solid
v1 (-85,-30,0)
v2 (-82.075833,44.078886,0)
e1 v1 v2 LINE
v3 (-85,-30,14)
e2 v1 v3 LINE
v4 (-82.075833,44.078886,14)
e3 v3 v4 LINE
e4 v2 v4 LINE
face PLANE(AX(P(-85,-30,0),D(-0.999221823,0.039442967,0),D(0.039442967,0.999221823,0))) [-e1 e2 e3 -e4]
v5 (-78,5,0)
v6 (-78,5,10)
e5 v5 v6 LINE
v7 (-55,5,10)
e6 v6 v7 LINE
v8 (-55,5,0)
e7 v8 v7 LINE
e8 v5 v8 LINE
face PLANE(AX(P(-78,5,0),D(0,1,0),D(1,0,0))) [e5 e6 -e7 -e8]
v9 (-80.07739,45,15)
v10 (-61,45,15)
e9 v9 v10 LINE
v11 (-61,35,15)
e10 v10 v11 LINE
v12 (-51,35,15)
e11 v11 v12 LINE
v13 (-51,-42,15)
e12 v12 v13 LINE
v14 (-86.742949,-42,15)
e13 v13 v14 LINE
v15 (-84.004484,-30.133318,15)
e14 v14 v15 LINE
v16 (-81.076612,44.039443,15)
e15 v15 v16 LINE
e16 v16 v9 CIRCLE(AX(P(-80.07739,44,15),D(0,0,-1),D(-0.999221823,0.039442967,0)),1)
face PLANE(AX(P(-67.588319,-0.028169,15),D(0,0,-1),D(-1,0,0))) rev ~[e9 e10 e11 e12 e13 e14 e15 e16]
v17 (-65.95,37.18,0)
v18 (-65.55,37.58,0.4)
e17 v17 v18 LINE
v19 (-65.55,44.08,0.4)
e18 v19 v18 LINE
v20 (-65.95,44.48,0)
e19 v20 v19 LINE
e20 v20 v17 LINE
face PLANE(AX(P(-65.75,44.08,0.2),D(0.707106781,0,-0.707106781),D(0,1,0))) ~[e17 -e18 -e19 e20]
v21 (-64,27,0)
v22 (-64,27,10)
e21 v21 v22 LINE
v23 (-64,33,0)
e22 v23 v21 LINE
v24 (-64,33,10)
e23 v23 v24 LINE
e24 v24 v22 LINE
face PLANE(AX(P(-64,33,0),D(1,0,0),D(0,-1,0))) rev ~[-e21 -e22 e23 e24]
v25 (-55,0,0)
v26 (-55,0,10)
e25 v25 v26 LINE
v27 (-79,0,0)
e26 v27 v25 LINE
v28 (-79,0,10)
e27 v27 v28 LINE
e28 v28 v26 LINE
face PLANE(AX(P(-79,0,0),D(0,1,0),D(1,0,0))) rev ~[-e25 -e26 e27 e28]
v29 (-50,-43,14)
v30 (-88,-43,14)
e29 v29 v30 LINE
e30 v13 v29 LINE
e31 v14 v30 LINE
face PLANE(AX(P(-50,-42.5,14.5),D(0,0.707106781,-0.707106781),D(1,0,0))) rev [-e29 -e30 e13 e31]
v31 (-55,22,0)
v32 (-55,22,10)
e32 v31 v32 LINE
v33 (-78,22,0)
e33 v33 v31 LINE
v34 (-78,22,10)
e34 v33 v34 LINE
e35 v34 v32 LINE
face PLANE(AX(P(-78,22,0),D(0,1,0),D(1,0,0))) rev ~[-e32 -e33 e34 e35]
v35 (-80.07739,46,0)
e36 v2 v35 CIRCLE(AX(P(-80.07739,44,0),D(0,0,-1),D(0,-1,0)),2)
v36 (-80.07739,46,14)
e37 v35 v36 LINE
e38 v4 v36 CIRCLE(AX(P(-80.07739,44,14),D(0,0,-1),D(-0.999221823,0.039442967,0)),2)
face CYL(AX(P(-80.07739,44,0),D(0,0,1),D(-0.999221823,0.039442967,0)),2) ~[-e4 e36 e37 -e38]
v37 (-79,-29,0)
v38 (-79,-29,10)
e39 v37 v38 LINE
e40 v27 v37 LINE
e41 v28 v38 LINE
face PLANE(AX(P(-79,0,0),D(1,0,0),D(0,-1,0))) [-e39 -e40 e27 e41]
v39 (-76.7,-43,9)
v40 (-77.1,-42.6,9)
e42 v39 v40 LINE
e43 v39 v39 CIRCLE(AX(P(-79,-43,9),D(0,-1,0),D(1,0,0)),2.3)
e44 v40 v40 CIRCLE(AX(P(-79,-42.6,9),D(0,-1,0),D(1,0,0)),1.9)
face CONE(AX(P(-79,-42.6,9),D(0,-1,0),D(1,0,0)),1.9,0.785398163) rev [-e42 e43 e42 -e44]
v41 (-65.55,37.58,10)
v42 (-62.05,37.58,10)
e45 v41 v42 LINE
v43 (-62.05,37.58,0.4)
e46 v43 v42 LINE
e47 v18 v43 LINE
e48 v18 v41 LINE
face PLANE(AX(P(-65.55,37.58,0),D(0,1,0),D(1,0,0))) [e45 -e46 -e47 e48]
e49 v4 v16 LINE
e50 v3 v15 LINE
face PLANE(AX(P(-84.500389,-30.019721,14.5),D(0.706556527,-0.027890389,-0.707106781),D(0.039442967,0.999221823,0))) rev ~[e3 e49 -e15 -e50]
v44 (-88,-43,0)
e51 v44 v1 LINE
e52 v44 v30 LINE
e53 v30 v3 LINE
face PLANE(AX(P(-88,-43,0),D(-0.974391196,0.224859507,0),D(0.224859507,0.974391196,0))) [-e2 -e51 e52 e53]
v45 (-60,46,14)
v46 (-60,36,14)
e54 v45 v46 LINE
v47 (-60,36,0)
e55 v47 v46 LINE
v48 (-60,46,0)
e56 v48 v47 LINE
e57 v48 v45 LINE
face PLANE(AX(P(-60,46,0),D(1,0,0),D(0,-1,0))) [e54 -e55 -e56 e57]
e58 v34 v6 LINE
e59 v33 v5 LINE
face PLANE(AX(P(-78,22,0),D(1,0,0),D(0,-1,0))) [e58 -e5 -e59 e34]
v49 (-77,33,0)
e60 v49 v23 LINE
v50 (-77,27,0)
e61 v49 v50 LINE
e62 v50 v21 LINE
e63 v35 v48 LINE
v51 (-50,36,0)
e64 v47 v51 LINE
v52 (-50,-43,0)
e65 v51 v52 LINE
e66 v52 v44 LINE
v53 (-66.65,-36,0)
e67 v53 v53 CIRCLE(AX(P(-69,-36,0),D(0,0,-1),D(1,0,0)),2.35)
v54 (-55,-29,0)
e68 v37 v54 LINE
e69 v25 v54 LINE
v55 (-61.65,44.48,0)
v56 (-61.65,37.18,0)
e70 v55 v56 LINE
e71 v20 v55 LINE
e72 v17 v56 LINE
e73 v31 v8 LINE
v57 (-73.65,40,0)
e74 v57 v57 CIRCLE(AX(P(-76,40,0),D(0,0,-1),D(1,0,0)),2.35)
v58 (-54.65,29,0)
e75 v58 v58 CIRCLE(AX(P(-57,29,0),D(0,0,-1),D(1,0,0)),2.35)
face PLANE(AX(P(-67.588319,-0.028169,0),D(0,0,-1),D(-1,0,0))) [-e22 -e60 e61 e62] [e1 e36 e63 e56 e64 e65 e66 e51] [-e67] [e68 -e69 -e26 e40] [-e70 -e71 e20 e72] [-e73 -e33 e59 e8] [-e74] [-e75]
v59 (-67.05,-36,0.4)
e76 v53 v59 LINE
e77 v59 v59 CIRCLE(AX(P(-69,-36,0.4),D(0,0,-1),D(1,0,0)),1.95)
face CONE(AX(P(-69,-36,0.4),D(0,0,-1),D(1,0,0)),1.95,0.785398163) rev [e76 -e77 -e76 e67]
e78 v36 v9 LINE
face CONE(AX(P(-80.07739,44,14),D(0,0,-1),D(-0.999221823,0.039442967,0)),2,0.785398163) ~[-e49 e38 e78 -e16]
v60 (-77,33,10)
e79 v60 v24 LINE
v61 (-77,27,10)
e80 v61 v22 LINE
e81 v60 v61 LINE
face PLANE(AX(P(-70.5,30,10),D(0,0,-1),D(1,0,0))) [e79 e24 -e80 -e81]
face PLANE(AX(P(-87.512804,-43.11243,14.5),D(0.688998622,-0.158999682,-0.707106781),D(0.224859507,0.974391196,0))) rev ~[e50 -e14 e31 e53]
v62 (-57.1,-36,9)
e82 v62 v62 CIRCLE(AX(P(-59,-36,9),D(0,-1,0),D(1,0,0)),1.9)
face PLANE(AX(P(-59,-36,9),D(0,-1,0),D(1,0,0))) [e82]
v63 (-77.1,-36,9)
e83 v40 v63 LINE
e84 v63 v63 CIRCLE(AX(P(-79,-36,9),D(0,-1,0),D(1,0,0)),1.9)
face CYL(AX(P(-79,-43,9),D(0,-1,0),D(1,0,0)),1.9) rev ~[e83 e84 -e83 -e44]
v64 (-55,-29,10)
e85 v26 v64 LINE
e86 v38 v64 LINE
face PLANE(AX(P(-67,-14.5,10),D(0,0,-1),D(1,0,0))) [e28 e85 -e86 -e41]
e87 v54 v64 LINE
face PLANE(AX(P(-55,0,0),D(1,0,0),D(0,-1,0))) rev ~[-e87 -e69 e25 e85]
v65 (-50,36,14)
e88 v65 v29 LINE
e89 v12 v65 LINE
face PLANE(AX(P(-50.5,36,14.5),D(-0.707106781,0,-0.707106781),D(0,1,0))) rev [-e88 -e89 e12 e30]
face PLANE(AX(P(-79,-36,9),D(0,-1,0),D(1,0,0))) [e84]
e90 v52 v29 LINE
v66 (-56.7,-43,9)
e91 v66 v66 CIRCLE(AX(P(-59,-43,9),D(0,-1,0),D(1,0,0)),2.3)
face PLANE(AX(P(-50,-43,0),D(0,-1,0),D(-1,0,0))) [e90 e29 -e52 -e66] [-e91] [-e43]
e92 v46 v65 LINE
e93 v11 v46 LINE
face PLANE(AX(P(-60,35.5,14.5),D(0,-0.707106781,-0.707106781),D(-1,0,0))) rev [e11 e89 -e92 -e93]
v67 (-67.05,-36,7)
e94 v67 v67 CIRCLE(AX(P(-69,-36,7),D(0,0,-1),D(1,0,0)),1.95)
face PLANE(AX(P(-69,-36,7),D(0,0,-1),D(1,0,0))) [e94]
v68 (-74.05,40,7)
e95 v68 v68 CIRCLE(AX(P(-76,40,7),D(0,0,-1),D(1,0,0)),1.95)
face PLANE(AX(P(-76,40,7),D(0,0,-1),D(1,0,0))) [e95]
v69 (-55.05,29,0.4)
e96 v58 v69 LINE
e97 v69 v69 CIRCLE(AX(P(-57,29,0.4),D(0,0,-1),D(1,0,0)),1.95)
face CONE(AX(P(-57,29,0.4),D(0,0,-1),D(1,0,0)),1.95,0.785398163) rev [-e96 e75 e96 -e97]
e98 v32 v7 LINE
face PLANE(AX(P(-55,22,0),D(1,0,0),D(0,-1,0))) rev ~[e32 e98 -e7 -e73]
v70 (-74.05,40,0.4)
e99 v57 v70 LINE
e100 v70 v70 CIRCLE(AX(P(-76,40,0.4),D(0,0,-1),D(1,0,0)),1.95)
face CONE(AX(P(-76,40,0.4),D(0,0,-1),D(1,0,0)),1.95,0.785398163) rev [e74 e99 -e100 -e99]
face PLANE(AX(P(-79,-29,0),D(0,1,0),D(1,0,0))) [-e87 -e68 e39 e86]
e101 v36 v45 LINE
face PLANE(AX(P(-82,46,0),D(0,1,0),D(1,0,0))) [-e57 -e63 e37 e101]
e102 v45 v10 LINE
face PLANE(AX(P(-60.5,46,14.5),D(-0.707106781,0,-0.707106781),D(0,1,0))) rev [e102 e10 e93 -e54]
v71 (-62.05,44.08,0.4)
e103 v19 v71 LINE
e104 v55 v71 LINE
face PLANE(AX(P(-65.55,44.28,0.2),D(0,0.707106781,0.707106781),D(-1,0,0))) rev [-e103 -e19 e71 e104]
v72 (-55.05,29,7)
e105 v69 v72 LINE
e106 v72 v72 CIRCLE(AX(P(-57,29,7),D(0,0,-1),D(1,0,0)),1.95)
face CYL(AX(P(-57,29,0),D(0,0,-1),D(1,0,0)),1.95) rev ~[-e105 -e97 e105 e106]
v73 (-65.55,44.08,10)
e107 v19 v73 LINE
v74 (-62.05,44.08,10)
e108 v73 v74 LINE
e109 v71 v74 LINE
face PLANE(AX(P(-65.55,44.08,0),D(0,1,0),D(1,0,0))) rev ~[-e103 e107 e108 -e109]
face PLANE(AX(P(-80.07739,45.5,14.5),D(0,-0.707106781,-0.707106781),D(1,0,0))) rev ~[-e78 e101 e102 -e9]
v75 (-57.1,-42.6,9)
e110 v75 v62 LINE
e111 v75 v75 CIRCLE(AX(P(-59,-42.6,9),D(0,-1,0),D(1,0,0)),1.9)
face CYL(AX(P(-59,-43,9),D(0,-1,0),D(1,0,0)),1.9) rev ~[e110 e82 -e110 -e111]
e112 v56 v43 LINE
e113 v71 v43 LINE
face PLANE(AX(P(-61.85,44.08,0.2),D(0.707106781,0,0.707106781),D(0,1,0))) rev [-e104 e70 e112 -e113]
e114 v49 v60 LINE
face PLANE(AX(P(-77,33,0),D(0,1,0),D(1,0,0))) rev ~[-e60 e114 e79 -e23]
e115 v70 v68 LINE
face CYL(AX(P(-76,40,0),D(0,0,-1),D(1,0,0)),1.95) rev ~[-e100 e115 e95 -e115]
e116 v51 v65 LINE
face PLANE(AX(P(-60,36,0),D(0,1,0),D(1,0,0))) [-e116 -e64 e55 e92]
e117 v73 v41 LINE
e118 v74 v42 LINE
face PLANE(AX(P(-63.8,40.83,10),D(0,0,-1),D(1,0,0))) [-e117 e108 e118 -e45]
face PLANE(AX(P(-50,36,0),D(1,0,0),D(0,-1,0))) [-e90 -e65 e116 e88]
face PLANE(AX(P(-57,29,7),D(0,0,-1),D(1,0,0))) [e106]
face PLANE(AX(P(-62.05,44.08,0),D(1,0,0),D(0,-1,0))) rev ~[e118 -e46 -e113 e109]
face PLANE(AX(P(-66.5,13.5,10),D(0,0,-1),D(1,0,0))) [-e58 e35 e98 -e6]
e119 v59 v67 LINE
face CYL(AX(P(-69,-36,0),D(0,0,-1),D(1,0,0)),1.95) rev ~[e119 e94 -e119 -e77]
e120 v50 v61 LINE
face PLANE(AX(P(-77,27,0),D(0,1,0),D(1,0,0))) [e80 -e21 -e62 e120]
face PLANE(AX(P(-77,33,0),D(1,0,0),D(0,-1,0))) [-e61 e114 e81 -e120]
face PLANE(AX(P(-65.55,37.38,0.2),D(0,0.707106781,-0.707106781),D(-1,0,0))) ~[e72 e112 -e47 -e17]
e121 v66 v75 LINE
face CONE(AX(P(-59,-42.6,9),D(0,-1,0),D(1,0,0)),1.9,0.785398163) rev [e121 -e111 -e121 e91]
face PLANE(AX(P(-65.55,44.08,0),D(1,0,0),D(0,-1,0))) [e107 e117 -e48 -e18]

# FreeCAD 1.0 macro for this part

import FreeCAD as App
import Part
import Sketcher
Q = App.Units.Quantity


def edges_at(feature, points):
    """Names of the edges that pass closest to the given points."""
    edges = feature.Shape.Edges
    near = lambda p: min(range(len(edges)), key=lambda i: edges[i].distToShape(Part.Vertex(*p))[0])
    return sorted({f"Edge{near(p) + 1}" for p in points})


def add_polygon(sketch, points):
    """Adds a closed chain of lines whose ends are joined by coincident constraints."""
    first, n = sketch.GeometryCount, len(points)
    for a, b in zip(points, points[1:] + points[:1]):
        sketch.addGeometry(Part.LineSegment(App.Vector(*a, 0), App.Vector(*b, 0)), False)
    for i in range(n):
        sketch.addConstraint(Sketcher.Constraint("Coincident", first + i, 2, first + (i + 1) % n, 1))

doc = App.newDocument("Part")
body = doc.addObject("PartDesign::Body", "Body")

# Sketch on XY plane
sketch1 = doc.addObject("Sketcher::SketchObject", "Sketch")
body.addObject(sketch1)
sketch1.AttachmentSupport = (doc.XY_Plane, [""])
sketch1.MapMode = "FlatFace"
add_polygon(sketch1, [(0, -43), (0, 36), (-10, 36), (-10, 46), (-32, 46), (-35, -30), (-38, -43)])  # lines 0-6
sketch1.addConstraint([
    Sketcher.Constraint("Vertical", 0),
    Sketcher.Constraint("Horizontal", 1),
    Sketcher.Constraint("Vertical", 2),
    Sketcher.Constraint("Horizontal", 3),
    Sketcher.Constraint("Horizontal", 6),
    Sketcher.Constraint("PointOnObject", 0, 2, -2),
    Sketcher.Constraint("Equal", 1, 2),
    Sketcher.Constraint("DistanceX", 1, 2, 1, 1, Q("10 mm")),
    Sketcher.Constraint("DistanceX", 3, 2, 3, 1, Q("22 mm")),
    Sketcher.Constraint("DistanceX", 6, 1, 6, 2, Q("38 mm")),
    Sketcher.Constraint("DistanceY", 0, 1, 0, 2, Q("79 mm")),
    Sketcher.Constraint("DistanceY", -1, 1, 0, 2, Q("36 mm")),
    Sketcher.Constraint("DistanceX", 4, 2, -1, 1, Q("35 mm")),
    Sketcher.Constraint("DistanceY", 4, 2, -1, 1, Q("30 mm")),
])
pad1 = doc.addObject("PartDesign::Pad", "Pad")
body.addObject(pad1)
pad1.Profile = sketch1
pad1.Length = 15
doc.recompute()

fillet = doc.addObject("PartDesign::Fillet", "Fillet")
body.addObject(fillet)
fillet.Base = (pad1, edges_at(pad1, [(-32, 46, 7.5)]))
fillet.Radius = 2
doc.recompute()

chamfer = doc.addObject("PartDesign::Chamfer", "Chamfer")
body.addObject(chamfer)
chamfer.Base = (fillet, edges_at(fillet, [
    (-19, -43, 15),
    (-33.538, 7.039, 15),
    (-36.5, -36.5, 15),
    (0, -3.5, 15),
    (-5, 36, 15),
    (-10, 41, 15),
    (-20.039, 46, 15),
    (-31.463, 45.442, 15),
]))
chamfer.Size = 1

# Sketch on XZ plane
sketch2 = doc.addObject("Sketcher::SketchObject", "Sketch001")
body.addObject(sketch2)
sketch2.AttachmentSupport = (doc.XZ_Plane, [""])
sketch2.MapMode = "FlatFace"
sketch2.AttachmentOffset = App.Placement(App.Vector(0, 0, 43), App.Rotation())
sketch2.addGeometry([
    Part.Circle(App.Vector(-29, 9, 0), App.Vector(0, 0, 1), 1.9),
    Part.Circle(App.Vector(-9, 9, 0), App.Vector(0, 0, 1), 1.9),
], False)
sketch2.addConstraint([
    Sketcher.Constraint("Equal", 0, 1),
    Sketcher.Constraint("Horizontal", 0, 3, 1, 3),
    Sketcher.Constraint("Diameter", 0, Q("3.8 mm")),
    Sketcher.Constraint("DistanceX", 0, 3, -1, 1, Q("29 mm")),
    Sketcher.Constraint("DistanceY", -1, 1, 0, 3, Q("9 mm")),
    Sketcher.Constraint("DistanceX", 1, 3, -1, 1, Q("9 mm")),
])
pocket1 = doc.addObject("PartDesign::Pocket", "Pocket")
body.addObject(pocket1)
pocket1.Profile = sketch2
pocket1.Length = 7

# Sketch on XY plane
sketch3 = doc.addObject("Sketcher::SketchObject", "Sketch002")
body.addObject(sketch3)
sketch3.AttachmentSupport = (doc.XY_Plane, [""])
sketch3.MapMode = "FlatFace"
add_polygon(sketch3, [(-15.55, 37.58), (-15.55, 44.08), (-12.05, 44.08), (-12.05, 37.58)])  # lines 0-3
sketch3.addConstraint([
    Sketcher.Constraint("Vertical", 0),
    Sketcher.Constraint("Horizontal", 1),
    Sketcher.Constraint("Vertical", 2),
    Sketcher.Constraint("Horizontal", 3),
    Sketcher.Constraint("DistanceX", 1, 1, 1, 2, Q("3.5 mm")),
    Sketcher.Constraint("DistanceY", 0, 1, 0, 2, Q("6.5 mm")),
    Sketcher.Constraint("DistanceX", 0, 2, -1, 1, Q("15.55 mm")),
    Sketcher.Constraint("DistanceY", -1, 1, 0, 2, Q("44.08 mm")),
])
pocket2 = doc.addObject("PartDesign::Pocket", "Pocket001")
body.addObject(pocket2)
pocket2.Profile = sketch3
pocket2.Length = 10
pocket2.Reversed = True

# Sketch on XY plane
sketch4 = doc.addObject("Sketcher::SketchObject", "Sketch003")
body.addObject(sketch4)
sketch4.AttachmentSupport = (doc.XY_Plane, [""])
sketch4.MapMode = "FlatFace"
sketch4.addGeometry([
    Part.Circle(App.Vector(-19, -36, 0), App.Vector(0, 0, 1), 1.95),
    Part.Circle(App.Vector(-26, 40, 0), App.Vector(0, 0, 1), 1.95),
    Part.Circle(App.Vector(-7, 29, 0), App.Vector(0, 0, 1), 1.95),
], False)
sketch4.addConstraint([
    Sketcher.Constraint("Equal", 0, 1),
    Sketcher.Constraint("Equal", 1, 2),
    Sketcher.Constraint("Diameter", 0, Q("3.9 mm")),
    Sketcher.Constraint("DistanceX", 0, 3, -1, 1, Q("19 mm")),
    Sketcher.Constraint("DistanceY", 0, 3, -1, 1, Q("36 mm")),
    Sketcher.Constraint("DistanceX", 1, 3, -1, 1, Q("26 mm")),
    Sketcher.Constraint("DistanceY", -1, 1, 1, 3, Q("40 mm")),
    Sketcher.Constraint("DistanceX", 2, 3, -1, 1, Q("7 mm")),
    Sketcher.Constraint("DistanceY", -1, 1, 2, 3, Q("29 mm")),
])
pocket3 = doc.addObject("PartDesign::Pocket", "Pocket002")
body.addObject(pocket3)
pocket3.Profile = sketch4
pocket3.Length = 7
pocket3.Reversed = True

# Sketch on XY plane
sketch5 = doc.addObject("Sketcher::SketchObject", "Sketch004")
body.addObject(sketch5)
sketch5.AttachmentSupport = (doc.XY_Plane, [""])
sketch5.MapMode = "FlatFace"
add_polygon(sketch5, [(-29, -29), (-29, 0), (-5, 0), (-5, -29)])  # lines 0-3
add_polygon(sketch5, [(-28, 5), (-28, 22), (-5, 22), (-5, 5)])  # lines 4-7
add_polygon(sketch5, [(-27, 27), (-27, 33), (-14, 33), (-14, 27)])  # lines 8-11
sketch5.addConstraint([
    Sketcher.Constraint("Vertical", 0),
    Sketcher.Constraint("Horizontal", 1),
    Sketcher.Constraint("Vertical", 2),
    Sketcher.Constraint("Horizontal", 3),
    Sketcher.Constraint("Vertical", 4),
    Sketcher.Constraint("Horizontal", 5),
    Sketcher.Constraint("Vertical", 6),
    Sketcher.Constraint("Horizontal", 7),
    Sketcher.Constraint("Vertical", 8),
    Sketcher.Constraint("Horizontal", 9),
    Sketcher.Constraint("Vertical", 10),
    Sketcher.Constraint("Horizontal", 11),
    Sketcher.Constraint("PointOnObject", 0, 2, -1),
    Sketcher.Constraint("Vertical", 2, 2, 5, 2),
    Sketcher.Constraint("DistanceX", 1, 1, 1, 2, Q("24 mm")),
    Sketcher.Constraint("DistanceX", 5, 1, 5, 2, Q("23 mm")),
    Sketcher.Constraint("DistanceX", 9, 1, 9, 2, Q("13 mm")),
    Sketcher.Constraint("DistanceY", 0, 1, 0, 2, Q("29 mm")),
    Sketcher.Constraint("DistanceY", 4, 1, 4, 2, Q("17 mm")),
    Sketcher.Constraint("DistanceY", 8, 1, 8, 2, Q("6 mm")),
    Sketcher.Constraint("DistanceX", 0, 2, -1, 1, Q("29 mm")),
    Sketcher.Constraint("DistanceY", -1, 1, 4, 2, Q("22 mm")),
    Sketcher.Constraint("DistanceX", 8, 2, -1, 1, Q("27 mm")),
    Sketcher.Constraint("DistanceY", -1, 1, 8, 2, Q("33 mm")),
])
pocket4 = doc.addObject("PartDesign::Pocket", "Pocket003")
body.addObject(pocket4)
pocket4.Profile = sketch5
pocket4.Length = 10
pocket4.Reversed = True
doc.recompute()

chamfer2 = doc.addObject("PartDesign::Chamfer", "Chamfer001")
body.addObject(chamfer2)
chamfer2.Base = (pocket4, edges_at(pocket4, [
    (-20.95, -36, 0),
    (-27.95, 40, 0),
    (-8.95, 29, 0),
    (-15.55, 40.83, 0),
    (-13.8, 37.58, 0),
    (-12.05, 40.83, 0),
    (-13.8, 44.08, 0),
    (-30.9, -43, 9),
    (-10.9, -43, 9),
]))
chamfer2.Size = 0.4
body2 = doc.addObject("PartDesign::Body", "Body001")
doc.recompute()

body.Placement = App.Placement(App.Vector(-50, 0, 0), App.Rotation(App.Vector(0, 0, 1), 0))
boolean = doc.addObject("PartDesign::Boolean", "Boolean")
body2.addObject(boolean)
boolean.Type = "Fuse"
boolean.addObjects([body])

doc.recompute()
